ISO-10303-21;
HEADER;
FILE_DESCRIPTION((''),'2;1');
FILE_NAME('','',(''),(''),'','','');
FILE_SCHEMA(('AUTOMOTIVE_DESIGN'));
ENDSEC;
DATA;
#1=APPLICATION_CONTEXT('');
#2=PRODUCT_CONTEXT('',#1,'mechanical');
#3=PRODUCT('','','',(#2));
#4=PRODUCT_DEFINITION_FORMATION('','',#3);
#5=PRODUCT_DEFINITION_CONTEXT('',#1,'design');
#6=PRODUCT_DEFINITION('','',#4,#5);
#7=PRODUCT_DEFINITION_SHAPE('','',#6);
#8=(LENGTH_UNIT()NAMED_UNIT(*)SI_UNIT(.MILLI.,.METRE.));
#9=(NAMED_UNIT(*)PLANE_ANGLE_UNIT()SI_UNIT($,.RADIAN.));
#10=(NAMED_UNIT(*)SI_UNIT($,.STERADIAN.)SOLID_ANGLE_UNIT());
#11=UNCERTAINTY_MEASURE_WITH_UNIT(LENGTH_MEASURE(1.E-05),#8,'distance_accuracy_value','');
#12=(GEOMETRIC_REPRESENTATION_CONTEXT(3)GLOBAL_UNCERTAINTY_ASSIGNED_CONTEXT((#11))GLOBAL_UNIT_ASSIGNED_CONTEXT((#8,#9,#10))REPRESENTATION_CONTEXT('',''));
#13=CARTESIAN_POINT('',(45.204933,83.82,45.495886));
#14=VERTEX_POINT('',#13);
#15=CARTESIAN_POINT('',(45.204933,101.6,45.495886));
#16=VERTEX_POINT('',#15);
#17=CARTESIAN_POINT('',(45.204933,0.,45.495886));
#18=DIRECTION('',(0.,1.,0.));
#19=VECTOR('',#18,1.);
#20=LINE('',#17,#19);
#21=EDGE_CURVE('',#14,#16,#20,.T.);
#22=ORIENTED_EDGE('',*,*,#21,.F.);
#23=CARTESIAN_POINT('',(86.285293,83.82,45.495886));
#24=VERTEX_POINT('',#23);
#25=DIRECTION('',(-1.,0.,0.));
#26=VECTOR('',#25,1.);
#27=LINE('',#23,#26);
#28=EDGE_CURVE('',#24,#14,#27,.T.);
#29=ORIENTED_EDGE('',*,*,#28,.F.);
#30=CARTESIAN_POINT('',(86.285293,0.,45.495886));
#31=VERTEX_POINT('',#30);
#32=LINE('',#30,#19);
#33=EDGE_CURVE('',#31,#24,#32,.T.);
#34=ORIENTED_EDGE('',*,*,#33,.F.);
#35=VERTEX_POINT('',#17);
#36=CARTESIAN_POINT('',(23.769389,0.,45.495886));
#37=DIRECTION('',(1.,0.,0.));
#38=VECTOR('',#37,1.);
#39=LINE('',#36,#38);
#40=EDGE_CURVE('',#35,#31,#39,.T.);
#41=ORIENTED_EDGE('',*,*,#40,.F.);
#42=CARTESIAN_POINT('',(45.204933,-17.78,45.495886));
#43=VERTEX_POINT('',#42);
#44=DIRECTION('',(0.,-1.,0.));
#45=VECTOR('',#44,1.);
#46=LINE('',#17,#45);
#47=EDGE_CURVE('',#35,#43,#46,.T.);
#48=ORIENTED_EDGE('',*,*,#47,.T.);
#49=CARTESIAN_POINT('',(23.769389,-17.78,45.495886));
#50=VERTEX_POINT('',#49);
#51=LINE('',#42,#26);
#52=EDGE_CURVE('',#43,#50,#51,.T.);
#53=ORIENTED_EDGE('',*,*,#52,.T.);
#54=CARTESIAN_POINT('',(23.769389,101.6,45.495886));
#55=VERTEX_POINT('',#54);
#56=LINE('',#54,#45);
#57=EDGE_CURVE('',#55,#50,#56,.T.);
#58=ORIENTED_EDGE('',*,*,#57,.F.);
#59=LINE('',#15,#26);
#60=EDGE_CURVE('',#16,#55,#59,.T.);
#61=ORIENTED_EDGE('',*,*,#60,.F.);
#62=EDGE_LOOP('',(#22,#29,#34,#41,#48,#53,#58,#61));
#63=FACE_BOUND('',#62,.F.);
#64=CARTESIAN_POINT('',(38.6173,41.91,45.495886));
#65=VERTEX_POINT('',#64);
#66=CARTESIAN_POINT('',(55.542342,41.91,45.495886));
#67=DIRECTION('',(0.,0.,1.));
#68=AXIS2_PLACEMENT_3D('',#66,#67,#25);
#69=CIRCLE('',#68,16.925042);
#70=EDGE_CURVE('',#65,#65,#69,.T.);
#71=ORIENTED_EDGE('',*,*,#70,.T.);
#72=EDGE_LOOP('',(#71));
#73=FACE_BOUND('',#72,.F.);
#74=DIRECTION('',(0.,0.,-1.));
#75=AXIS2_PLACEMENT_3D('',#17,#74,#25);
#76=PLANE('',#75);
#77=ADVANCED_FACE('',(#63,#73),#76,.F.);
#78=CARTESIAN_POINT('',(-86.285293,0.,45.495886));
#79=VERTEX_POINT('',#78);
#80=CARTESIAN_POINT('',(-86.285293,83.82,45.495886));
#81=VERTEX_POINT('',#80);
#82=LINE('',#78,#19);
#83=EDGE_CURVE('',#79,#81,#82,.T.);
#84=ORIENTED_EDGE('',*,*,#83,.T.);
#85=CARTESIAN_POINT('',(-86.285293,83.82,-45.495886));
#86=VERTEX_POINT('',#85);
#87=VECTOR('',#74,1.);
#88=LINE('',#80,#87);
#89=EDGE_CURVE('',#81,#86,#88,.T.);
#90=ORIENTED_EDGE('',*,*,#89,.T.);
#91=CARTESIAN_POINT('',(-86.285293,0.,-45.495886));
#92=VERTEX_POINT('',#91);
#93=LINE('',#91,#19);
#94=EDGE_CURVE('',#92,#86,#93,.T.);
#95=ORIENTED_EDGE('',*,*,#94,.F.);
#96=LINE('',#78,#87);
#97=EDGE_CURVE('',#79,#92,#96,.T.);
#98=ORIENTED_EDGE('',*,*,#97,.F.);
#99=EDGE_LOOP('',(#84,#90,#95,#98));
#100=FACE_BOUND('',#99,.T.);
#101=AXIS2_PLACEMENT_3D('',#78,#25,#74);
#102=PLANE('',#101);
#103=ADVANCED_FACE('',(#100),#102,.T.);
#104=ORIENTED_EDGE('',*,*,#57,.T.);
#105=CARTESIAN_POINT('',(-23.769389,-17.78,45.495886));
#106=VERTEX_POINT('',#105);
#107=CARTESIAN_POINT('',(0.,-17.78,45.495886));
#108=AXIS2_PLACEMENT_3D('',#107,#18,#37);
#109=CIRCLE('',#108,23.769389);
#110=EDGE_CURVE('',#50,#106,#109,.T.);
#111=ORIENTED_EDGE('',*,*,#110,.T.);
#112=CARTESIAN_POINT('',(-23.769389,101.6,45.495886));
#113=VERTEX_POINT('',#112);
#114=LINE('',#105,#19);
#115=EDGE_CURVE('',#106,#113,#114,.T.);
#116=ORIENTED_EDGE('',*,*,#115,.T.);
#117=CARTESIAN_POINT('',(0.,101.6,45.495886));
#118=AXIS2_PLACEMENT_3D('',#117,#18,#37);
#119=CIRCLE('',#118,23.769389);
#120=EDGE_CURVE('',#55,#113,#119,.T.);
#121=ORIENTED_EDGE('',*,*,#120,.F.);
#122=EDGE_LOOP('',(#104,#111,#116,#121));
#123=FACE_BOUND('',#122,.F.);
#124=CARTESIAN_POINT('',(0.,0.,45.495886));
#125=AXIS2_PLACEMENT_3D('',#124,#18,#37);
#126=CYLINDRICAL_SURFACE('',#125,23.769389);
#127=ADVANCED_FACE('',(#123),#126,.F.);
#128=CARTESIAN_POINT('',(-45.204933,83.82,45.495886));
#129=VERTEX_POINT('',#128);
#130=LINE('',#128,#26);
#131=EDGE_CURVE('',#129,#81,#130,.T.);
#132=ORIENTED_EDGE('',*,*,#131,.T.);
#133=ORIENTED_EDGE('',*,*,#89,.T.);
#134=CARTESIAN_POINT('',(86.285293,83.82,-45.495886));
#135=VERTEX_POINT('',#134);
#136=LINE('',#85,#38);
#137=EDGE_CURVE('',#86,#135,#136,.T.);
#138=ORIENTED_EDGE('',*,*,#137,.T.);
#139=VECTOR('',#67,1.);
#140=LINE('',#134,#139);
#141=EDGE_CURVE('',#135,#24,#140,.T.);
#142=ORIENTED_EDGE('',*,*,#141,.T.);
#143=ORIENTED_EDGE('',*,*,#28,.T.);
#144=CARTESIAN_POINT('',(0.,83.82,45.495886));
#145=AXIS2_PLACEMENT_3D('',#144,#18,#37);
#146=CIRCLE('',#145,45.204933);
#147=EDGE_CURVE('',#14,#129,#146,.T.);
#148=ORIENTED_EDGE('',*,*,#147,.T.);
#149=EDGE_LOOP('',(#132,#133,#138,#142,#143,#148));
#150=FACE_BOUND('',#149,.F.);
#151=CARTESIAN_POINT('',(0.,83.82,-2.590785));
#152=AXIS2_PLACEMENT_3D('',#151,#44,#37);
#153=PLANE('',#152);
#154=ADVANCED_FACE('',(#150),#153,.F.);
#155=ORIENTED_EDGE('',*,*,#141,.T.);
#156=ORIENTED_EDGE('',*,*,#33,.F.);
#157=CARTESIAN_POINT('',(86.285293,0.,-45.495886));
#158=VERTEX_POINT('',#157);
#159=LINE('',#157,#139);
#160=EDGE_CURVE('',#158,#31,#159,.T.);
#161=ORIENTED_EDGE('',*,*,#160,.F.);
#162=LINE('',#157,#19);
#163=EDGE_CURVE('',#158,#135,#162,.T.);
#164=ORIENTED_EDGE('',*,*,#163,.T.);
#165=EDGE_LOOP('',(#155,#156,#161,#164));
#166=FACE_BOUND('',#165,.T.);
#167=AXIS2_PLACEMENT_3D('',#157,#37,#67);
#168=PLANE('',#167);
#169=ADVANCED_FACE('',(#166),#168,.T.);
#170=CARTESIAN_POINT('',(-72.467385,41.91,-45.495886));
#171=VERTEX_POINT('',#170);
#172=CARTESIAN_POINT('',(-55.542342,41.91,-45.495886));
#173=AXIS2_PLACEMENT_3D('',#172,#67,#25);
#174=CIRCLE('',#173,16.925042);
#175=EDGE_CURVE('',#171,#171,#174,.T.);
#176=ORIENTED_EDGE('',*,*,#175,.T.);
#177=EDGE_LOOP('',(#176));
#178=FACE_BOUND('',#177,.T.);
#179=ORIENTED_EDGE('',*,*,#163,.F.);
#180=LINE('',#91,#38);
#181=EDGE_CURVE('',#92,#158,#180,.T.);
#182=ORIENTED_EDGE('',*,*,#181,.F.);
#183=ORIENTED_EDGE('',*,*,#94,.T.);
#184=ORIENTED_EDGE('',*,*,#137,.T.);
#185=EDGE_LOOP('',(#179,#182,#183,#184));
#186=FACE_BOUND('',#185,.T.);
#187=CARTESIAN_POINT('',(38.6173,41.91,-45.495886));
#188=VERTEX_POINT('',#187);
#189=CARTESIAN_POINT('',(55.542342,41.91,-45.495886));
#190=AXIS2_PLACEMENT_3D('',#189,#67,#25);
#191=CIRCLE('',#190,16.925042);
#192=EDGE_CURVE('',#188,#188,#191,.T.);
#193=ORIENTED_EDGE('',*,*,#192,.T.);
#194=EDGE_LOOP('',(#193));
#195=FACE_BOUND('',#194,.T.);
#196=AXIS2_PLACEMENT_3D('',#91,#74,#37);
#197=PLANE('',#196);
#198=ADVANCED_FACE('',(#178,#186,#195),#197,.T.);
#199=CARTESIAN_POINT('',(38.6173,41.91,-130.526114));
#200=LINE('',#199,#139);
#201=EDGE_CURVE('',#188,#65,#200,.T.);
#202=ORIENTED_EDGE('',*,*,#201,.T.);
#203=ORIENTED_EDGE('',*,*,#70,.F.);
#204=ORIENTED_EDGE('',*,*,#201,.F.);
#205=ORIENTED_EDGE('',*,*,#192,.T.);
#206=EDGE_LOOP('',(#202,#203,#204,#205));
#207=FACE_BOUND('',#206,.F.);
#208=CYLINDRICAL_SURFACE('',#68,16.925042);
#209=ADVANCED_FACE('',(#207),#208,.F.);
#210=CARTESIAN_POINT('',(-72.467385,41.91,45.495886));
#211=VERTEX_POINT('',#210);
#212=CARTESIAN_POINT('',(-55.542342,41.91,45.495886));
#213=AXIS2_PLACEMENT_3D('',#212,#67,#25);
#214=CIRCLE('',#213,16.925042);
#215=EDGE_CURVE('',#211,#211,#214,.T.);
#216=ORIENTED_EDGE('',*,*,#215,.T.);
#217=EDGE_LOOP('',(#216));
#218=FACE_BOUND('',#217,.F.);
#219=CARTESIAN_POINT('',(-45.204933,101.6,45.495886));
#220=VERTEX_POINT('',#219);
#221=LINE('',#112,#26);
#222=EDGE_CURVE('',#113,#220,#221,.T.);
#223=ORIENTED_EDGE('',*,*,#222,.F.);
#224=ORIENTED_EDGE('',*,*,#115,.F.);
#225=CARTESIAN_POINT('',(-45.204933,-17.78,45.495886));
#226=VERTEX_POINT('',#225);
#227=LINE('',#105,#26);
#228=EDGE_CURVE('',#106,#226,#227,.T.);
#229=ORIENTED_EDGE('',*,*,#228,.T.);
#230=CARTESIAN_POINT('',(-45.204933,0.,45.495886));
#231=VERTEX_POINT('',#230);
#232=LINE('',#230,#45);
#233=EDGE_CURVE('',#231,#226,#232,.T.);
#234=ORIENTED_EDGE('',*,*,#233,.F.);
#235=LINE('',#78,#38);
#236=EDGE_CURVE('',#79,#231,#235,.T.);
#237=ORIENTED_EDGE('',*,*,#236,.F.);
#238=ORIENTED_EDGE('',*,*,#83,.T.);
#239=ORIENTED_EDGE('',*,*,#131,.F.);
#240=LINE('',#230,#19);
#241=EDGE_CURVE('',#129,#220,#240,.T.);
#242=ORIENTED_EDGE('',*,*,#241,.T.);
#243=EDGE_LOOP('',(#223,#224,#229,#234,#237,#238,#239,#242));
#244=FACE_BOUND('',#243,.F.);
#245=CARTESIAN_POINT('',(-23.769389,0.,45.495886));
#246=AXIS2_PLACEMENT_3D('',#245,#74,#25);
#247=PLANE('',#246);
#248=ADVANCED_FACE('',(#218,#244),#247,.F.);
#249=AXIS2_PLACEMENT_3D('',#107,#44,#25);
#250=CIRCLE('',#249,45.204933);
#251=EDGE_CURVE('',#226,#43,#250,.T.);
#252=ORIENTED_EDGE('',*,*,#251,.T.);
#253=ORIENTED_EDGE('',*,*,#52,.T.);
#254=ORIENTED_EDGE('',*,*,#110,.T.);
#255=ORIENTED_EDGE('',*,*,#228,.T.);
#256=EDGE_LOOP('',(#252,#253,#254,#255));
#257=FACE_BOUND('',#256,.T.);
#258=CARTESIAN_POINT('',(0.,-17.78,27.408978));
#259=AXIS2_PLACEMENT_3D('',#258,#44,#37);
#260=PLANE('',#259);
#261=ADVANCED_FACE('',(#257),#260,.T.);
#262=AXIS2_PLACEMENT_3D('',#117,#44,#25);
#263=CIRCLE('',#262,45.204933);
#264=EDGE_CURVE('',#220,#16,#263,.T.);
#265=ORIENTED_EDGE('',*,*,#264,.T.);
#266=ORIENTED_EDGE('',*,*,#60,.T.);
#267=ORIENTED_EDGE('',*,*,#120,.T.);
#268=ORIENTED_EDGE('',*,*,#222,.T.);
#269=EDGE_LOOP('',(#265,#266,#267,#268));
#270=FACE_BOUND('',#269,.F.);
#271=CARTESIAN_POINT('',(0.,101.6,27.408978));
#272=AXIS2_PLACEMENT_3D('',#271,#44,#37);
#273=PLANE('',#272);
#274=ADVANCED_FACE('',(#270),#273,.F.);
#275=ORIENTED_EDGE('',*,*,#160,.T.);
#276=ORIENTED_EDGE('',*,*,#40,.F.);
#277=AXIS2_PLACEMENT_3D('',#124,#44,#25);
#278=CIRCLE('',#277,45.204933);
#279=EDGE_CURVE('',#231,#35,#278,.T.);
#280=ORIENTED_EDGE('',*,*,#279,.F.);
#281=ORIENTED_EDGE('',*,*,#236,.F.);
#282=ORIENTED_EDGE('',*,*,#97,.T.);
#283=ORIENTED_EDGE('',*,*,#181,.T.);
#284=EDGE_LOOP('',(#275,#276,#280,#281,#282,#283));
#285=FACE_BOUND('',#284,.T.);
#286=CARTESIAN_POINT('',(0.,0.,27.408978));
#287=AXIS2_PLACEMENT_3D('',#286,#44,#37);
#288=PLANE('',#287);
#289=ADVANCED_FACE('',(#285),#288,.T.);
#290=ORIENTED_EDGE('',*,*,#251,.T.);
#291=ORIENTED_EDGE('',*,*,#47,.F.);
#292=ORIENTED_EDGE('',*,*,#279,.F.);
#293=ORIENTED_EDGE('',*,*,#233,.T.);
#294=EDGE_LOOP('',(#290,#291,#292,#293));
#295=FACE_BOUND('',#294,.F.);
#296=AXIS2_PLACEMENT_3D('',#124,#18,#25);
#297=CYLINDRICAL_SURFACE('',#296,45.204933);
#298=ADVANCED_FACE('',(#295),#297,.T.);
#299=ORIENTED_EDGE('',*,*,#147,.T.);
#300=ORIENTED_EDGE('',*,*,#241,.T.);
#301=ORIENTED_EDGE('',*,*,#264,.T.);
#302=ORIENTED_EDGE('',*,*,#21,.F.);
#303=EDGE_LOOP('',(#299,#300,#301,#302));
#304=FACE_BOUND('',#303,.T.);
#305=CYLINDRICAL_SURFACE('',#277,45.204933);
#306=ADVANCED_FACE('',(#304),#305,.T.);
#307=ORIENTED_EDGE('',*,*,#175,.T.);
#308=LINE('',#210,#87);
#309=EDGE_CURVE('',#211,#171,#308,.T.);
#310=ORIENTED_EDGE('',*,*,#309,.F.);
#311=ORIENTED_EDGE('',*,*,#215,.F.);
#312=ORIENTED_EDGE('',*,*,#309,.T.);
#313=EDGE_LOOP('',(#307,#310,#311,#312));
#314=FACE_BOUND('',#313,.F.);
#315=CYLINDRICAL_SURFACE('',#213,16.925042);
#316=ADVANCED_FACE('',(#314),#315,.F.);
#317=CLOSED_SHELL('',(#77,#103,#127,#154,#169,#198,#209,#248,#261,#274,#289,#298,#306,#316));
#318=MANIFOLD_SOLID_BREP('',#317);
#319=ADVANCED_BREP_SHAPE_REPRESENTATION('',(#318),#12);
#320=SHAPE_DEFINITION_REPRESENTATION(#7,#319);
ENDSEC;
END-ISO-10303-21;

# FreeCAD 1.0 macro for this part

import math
import FreeCAD as App
import Part
import Sketcher
Q = App.Units.Quantity

doc = App.newDocument("Part")
body = doc.addObject("PartDesign::Body", "Body")

# Sketch on XZ plane
sketch1 = doc.addObject("Sketcher::SketchObject", "Sketch")
body.addObject(sketch1)
sketch1.AttachmentSupport = (doc.XZ_Plane, [""])
sketch1.MapMode = "FlatFace"
sketch1.addGeometry([
    Part.LineSegment(App.Vector(-86, -45, 0), App.Vector(86, -45, 0)),  # 0
    Part.LineSegment(App.Vector(86, -45, 0), App.Vector(86, 45, 0)),  # 1
    Part.LineSegment(App.Vector(86, 45, 0), App.Vector(45, 45, 0)),  # 2
    Part.ArcOfCircle(Part.Circle(App.Vector(0, 45, 0), App.Vector(0, 0, 1), 45), math.radians(180), math.radians(360)),  # 3
    Part.LineSegment(App.Vector(-45, 45, 0), App.Vector(-86, 45, 0)),  # 4
    Part.LineSegment(App.Vector(-86, 45, 0), App.Vector(-86, -45, 0)),  # 5
], False)
sketch1.addConstraint([
    Sketcher.Constraint("Coincident", 0, 2, 1, 1),
    Sketcher.Constraint("Coincident", 1, 2, 2, 1),
    Sketcher.Constraint("Coincident", 2, 2, 3, 2),
    Sketcher.Constraint("Coincident", 3, 1, 4, 1),
    Sketcher.Constraint("Coincident", 4, 2, 5, 1),
    Sketcher.Constraint("Coincident", 5, 2, 0, 1),
    Sketcher.Constraint("Horizontal", 0),
    Sketcher.Constraint("Vertical", 1),
    Sketcher.Constraint("Horizontal", 2),
    Sketcher.Constraint("Horizontal", 4),
    Sketcher.Constraint("Vertical", 5),
    Sketcher.Constraint("Symmetric", 0, 2, 4, 2, -1, 1),
    Sketcher.Constraint("Symmetric", 2, 2, 3, 1, -2),
    Sketcher.Constraint("Horizontal", 3, 3, 1, 2),
    Sketcher.Constraint("Radius", 3, 45.204933),
    Sketcher.Constraint("DistanceX", 2, 2, 2, 1, 41.08036),
    Sketcher.Constraint("DistanceY", 1, 1, 1, 2, 90.991773),
])
pad1 = doc.addObject("PartDesign::Pad", "Pad")
body.addObject(pad1)
pad1.Profile = sketch1
pad1.Length = Q("3.3 in")
pad1.Reversed = True

# Sketch on XZ plane
sketch2 = doc.addObject("Sketcher::SketchObject", "Sketch001")
body.addObject(sketch2)
sketch2.AttachmentSupport = (doc.XZ_Plane, [""])
sketch2.MapMode = "FlatFace"
sketch2.addGeometry([
    Part.ArcOfCircle(Part.Circle(App.Vector(0, 45, 0), App.Vector(0, 0, 1), 45), math.radians(180), math.radians(360)),
    Part.LineSegment(App.Vector(45, 45, 0), App.Vector(24, 45, 0)),
    Part.ArcOfCircle(Part.Circle(App.Vector(0, 45, 0), App.Vector(0, 0, 1), 24), math.radians(180), math.radians(360)),
    Part.LineSegment(App.Vector(-24, 45, 0), App.Vector(-45, 45, 0)),
], False)
sketch2.addConstraint([
    Sketcher.Constraint("Coincident", 0, 2, 1, 1),
    Sketcher.Constraint("Coincident", 1, 2, 2, 2),
    Sketcher.Constraint("Coincident", 2, 1, 3, 1),
    Sketcher.Constraint("Coincident", 3, 2, 0, 1),
    Sketcher.Constraint("Horizontal", 1),
    Sketcher.Constraint("Horizontal", 3),
    Sketcher.Constraint("Coincident", 2, 3, 0, 3),
    Sketcher.Constraint("Symmetric", 1, 2, 2, 1, -2),
    Sketcher.Constraint("Horizontal", 2, 3, 0, 2),
    Sketcher.Constraint("Radius", 2, 23.769389),
    Sketcher.Constraint("Radius", 0, 45.204933),
    Sketcher.Constraint("DistanceY", -1, 1, 0, 3, 45.495886),
])
pad2 = doc.addObject("PartDesign::Pad", "Pad001")
body.addObject(pad2)
pad2.Profile = sketch2
pad2.Type = "TwoLengths"
pad2.Length = Q("4 in")
pad2.Length2 = Q("0.7 in")
pad2.Reversed = True

# Sketch on XY plane
sketch3 = doc.addObject("Sketcher::SketchObject", "Sketch002")
body.addObject(sketch3)
sketch3.AttachmentSupport = (doc.XY_Plane, [""])
sketch3.MapMode = "FlatFace"
sketch3.AttachmentOffset = App.Placement(App.Vector(0, 0, 45.495886), App.Rotation())
sketch3.addGeometry([
    Part.Circle(App.Vector(-56, 42, 0), App.Vector(0, 0, 1), 17),
    Part.Circle(App.Vector(56, 42, 0), App.Vector(0, 0, 1), 17),
], False)
sketch3.addConstraint([
    Sketcher.Constraint("Equal", 0, 1),
    Sketcher.Constraint("Symmetric", 0, 3, 1, 3, -2),
    Sketcher.Constraint("DistanceY", -1, 1, 0, 3, Q("1.65 in")),
    Sketcher.Constraint("Diameter", 0, 33.850085),
    Sketcher.Constraint("DistanceX", 0, 3, -1, 1, 55.542342),
])
pocket1 = doc.addObject("PartDesign::Pocket", "Pocket")
body.addObject(pocket1)
pocket1.Profile = sketch3
pocket1.Length = Q("13.86 in")
pocket1.Midplane = True

doc.recompute()
